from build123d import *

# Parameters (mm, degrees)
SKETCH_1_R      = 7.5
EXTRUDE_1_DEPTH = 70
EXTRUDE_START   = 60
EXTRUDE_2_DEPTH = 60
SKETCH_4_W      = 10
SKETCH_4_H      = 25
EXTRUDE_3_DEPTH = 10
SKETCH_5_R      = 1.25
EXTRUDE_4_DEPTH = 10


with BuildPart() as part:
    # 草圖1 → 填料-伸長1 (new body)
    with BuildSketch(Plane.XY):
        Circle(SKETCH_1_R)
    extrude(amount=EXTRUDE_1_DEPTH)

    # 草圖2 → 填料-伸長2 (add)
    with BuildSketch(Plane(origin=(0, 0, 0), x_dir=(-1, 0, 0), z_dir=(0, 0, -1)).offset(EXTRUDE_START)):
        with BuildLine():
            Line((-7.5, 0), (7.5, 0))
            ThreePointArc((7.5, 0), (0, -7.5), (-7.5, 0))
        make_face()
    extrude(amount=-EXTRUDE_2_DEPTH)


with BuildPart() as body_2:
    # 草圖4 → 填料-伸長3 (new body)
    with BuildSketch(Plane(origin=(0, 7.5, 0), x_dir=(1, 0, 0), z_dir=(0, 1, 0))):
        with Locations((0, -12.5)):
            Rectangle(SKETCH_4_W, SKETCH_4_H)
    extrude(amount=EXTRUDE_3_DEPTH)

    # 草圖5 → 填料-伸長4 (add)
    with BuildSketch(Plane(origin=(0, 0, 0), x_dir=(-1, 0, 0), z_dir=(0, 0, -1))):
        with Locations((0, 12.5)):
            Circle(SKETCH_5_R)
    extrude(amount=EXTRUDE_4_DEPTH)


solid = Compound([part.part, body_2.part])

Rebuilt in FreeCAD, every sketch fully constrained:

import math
import FreeCAD as App
import Part
import Sketcher

V = App.Vector
Q = App.Units.Quantity


def add_polygon(sketch, points):
    """Adds a closed chain of lines whose ends are joined by coincident constraints."""
    first, n = sketch.GeometryCount, len(points)
    for a, b in zip(points, points[1:] + points[:1]):
        sketch.addGeometry(Part.LineSegment(App.Vector(*a, 0), App.Vector(*b, 0)), False)
    for i in range(n):
        sketch.addConstraint(Sketcher.Constraint("Coincident", first + i, 2, first + (i + 1) % n, 1))

doc = App.newDocument("Part")
body = doc.addObject("PartDesign::Body", "Body")

# Sketch on XY plane
sketch1 = body.newObject("Sketcher::SketchObject", "Sketch")
sketch1.AttachmentSupport = (doc.getObject("XY_Plane"), [""])
sketch1.MapMode = "FlatFace"
sketch1.addGeometry(Part.Circle(V(0, 0, 0), V(0, 0, 1), 8), False)
sketch1.addConstraint([
    Sketcher.Constraint("Coincident", 0, 3, -1, 1),
    Sketcher.Constraint("Diameter", 0, Q("15 mm")),
])
pad1 = body.newObject("PartDesign::Pad", "Pad")
pad1.Profile = sketch1
pad1.Length = 70

# Sketch on XY plane
sketch2 = body.newObject("Sketcher::SketchObject", "Sketch001")
sketch2.AttachmentSupport = (doc.getObject("XY_Plane"), [""])
sketch2.MapMode = "FlatFace"
sketch2.AttachmentOffset = App.Placement(V(0, 0, -60), App.Rotation())
sketch2.addGeometry([
    Part.LineSegment(V(-8, 0, 0), V(8, 0, 0)),
    Part.ArcOfCircle(Part.Circle(V(0, 0, 0), V(0, 0, 1), 8), math.radians(180), math.radians(360)),
], False)
sketch2.addConstraint([
    Sketcher.Constraint("Coincident", 0, 1, 1, 1),
    Sketcher.Constraint("Coincident", 1, 2, 0, 2),
    Sketcher.Constraint("Horizontal", 0),
    Sketcher.Constraint("Coincident", 1, 3, -1, 1),
    Sketcher.Constraint("PointOnObject", 0, 1, -1),
    Sketcher.Constraint("Radius", 1, Q("7.5 mm")),
])
pad2 = body.newObject("PartDesign::Pad", "Pad001")
pad2.Profile = sketch2
pad2.Length = 60
body2 = doc.addObject("PartDesign::Body", "Body001")

# Sketch on XZ plane
sketch3 = body2.newObject("Sketcher::SketchObject", "Sketch002")
sketch3.AttachmentSupport = (doc.getObject("XZ_Plane001"), [""])
sketch3.MapMode = "FlatFace"
sketch3.AttachmentOffset = App.Placement(V(0, 0, -7.5), App.Rotation())
add_polygon(sketch3, [(-5, 0), (-5, 25), (5, 25), (5, 0)])  # lines 0-3
sketch3.addConstraint([
    Sketcher.Constraint("Vertical", 0),
    Sketcher.Constraint("Horizontal", 1),
    Sketcher.Constraint("Vertical", 2),
    Sketcher.Constraint("Horizontal", 3),
    Sketcher.Constraint("Symmetric", 2, 2, 3, 2, -1, 1),
    Sketcher.Constraint("DistanceX", 1, 1, 1, 2, Q("10 mm")),
    Sketcher.Constraint("DistanceY", 0, 1, 0, 2, Q("25 mm")),
])
pad3 = body2.newObject("PartDesign::Pad", "Pad002")
pad3.Profile = sketch3
pad3.Length = 10
pad3.Reversed = True

# Sketch on XY plane
sketch4 = body2.newObject("Sketcher::SketchObject", "Sketch003")
sketch4.AttachmentSupport = (doc.getObject("XY_Plane001"), [""])
sketch4.MapMode = "FlatFace"
sketch4.addGeometry(Part.Circle(V(0, 12.5, 0), V(0, 0, 1), 1.2), False)
sketch4.addConstraint([
    Sketcher.Constraint("PointOnObject", 0, 3, -2),
    Sketcher.Constraint("Diameter", 0, Q("2.5 mm")),
    Sketcher.Constraint("DistanceY", -1, 1, 0, 3, Q("12.5 mm")),
])
pad4 = body2.newObject("PartDesign::Pad", "Pad003")
pad4.Profile = sketch4
pad4.Length = 10
pad4.Reversed = True

doc.recompute()
